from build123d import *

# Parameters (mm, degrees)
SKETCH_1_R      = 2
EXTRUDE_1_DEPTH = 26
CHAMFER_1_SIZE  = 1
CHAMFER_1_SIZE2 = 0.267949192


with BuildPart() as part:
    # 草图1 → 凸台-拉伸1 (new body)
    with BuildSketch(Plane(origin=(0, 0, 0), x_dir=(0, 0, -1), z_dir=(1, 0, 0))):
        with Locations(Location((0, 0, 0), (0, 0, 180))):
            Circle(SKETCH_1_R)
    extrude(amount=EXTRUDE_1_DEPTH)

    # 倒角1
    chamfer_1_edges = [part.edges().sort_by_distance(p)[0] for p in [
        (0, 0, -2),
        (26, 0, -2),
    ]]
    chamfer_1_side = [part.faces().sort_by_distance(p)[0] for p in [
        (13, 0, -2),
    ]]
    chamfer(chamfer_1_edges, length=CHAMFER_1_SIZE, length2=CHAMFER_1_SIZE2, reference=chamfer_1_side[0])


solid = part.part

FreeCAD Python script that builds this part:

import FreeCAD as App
import Part
import Sketcher


def edges_at(feature, points):
    """Names of the edges that pass closest to the given points."""
    edges = feature.Shape.Edges
    near = lambda p: min(range(len(edges)), key=lambda i: edges[i].distToShape(Part.Vertex(*p))[0])
    return sorted({f"Edge{near(p) + 1}" for p in points})

doc = App.newDocument("Part")
body = doc.addObject("PartDesign::Body", "Body")

sketch1 = doc.addObject("Sketcher::SketchObject", "Sketch")
body.addObject(sketch1)
sketch1.AttachmentSupport = (doc.YZ_Plane, [""])
sketch1.MapMode = "FlatFace"
sketch1.addGeometry(Part.Circle(App.Vector(0, 0, 0), App.Vector(0, 0, 1), 2), False)
sketch1.addConstraint([
    Sketcher.Constraint("Coincident", 0, 3, -1, 1),
    Sketcher.Constraint("Diameter", 0, 4.0),
])
pad1 = doc.addObject("PartDesign::Pad", "Pad")
body.addObject(pad1)
pad1.Profile = sketch1
pad1.Length = 26
doc.recompute()

chamfer = doc.addObject("PartDesign::Chamfer", "Chamfer")
body.addObject(chamfer)
chamfer.Base = (pad1, edges_at(pad1, [(0, 0, -2), (26, 0, -2)]))
chamfer.ChamferType = "Two distances"
chamfer.Size = 1
chamfer.Size2 = 0.267949

doc.recompute()
